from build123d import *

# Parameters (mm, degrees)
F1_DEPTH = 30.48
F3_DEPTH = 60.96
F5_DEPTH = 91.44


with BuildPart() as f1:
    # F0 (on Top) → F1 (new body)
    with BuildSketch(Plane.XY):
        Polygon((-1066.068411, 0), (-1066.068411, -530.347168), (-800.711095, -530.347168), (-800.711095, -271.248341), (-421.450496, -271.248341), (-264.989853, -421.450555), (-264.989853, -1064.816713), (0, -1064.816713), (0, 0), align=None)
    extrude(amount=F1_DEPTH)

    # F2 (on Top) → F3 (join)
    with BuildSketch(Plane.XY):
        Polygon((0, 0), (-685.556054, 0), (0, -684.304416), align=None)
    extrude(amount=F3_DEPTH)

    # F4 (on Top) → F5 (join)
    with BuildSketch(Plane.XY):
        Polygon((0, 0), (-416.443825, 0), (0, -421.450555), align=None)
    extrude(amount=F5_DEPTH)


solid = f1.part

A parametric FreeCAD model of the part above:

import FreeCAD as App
import Part
import Sketcher
Q = App.Units.Quantity

doc = App.newDocument("Part")
body = doc.addObject("PartDesign::Body", "Body")

# Sketch on XY plane
sketch1 = doc.addObject("Sketcher::SketchObject", "Sketch")
body.addObject(sketch1)
sketch1.AttachmentSupport = (doc.XY_Plane, [""])
sketch1.MapMode = "FlatFace"
sketch1.addGeometry([
    Part.LineSegment(App.Vector(-1066.068411, 0, 0), App.Vector(-1066.068411, -530.347168, 0)),  # 0
    Part.LineSegment(App.Vector(-1066.068411, -530.347168, 0), App.Vector(-800.711095, -530.347168, 0)),  # 1
    Part.LineSegment(App.Vector(-800.711095, -530.347168, 0), App.Vector(-800.711095, -271.248341, 0)),  # 2
    Part.LineSegment(App.Vector(-800.711095, -271.248341, 0), App.Vector(-421.450496, -271.248341, 0)),  # 3
    Part.LineSegment(App.Vector(-421.450496, -271.248341, 0), App.Vector(-264.989853, -421.450555, 0)),  # 4
    Part.LineSegment(App.Vector(-264.989853, -421.450555, 0), App.Vector(-264.989853, -1064.816713, 0)),  # 5
    Part.LineSegment(App.Vector(-264.989853, -1064.816713, 0), App.Vector(0, -1064.816713, 0)),  # 6
    Part.LineSegment(App.Vector(0, -1064.816713, 0), App.Vector(0, 0, 0)),  # 7
    Part.LineSegment(App.Vector(0, 0, 0), App.Vector(-1066.068411, 0, 0)),  # 8
], False)
sketch1.addConstraint([
    Sketcher.Constraint("Coincident", 0, 2, 1, 1),
    Sketcher.Constraint("Coincident", 1, 2, 2, 1),
    Sketcher.Constraint("Coincident", 2, 2, 3, 1),
    Sketcher.Constraint("Coincident", 3, 2, 4, 1),
    Sketcher.Constraint("Coincident", 4, 2, 5, 1),
    Sketcher.Constraint("Coincident", 5, 2, 6, 1),
    Sketcher.Constraint("Coincident", 6, 2, 7, 1),
    Sketcher.Constraint("Coincident", 7, 2, 8, 1),
    Sketcher.Constraint("Coincident", 8, 2, 0, 1),
    Sketcher.Constraint("Vertical", 0),
    Sketcher.Constraint("Horizontal", 1),
    Sketcher.Constraint("Vertical", 2),
    Sketcher.Constraint("Horizontal", 3),
    Sketcher.Constraint("Vertical", 5),
    Sketcher.Constraint("Horizontal", 6),
    Sketcher.Constraint("Vertical", 7),
    Sketcher.Constraint("Horizontal", 8),
    Sketcher.Constraint("Coincident", 7, 2, -1, 1),
    Sketcher.Constraint("DistanceX", 3, 1, 3, 2, Q("379.260599 mm")),
    Sketcher.Constraint("DistanceX", 8, 2, 8, 1, Q("1066.068411 mm")),
    Sketcher.Constraint("DistanceY", 0, 2, 0, 1, Q("530.347168 mm")),
    Sketcher.Constraint("DistanceX", 1, 1, 1, 2, Q("265.357316 mm")),
    Sketcher.Constraint("DistanceX", 6, 1, 6, 2, Q("264.989853 mm")),
    Sketcher.Constraint("DistanceY", 2, 1, 2, 2, Q("259.098827 mm")),
    Sketcher.Constraint("DistanceY", 5, 2, 5, 1, Q("643.366158 mm")),
    Sketcher.Constraint("DistanceY", 7, 1, 7, 2, Q("1064.816713 mm")),
])
pad1 = doc.addObject("PartDesign::Pad", "Pad")
body.addObject(pad1)
pad1.Profile = sketch1
pad1.Length = Q("1.2 in")

# Sketch on XY plane
sketch2 = doc.addObject("Sketcher::SketchObject", "Sketch001")
body.addObject(sketch2)
sketch2.AttachmentSupport = (doc.XY_Plane, [""])
sketch2.MapMode = "FlatFace"
sketch2.addGeometry([
    Part.LineSegment(App.Vector(0, 0, 0), App.Vector(-685.556054, 0, 0)),
    Part.LineSegment(App.Vector(-685.556054, 0, 0), App.Vector(0, -684.304416, 0)),
    Part.LineSegment(App.Vector(0, -684.304416, 0), App.Vector(0, 0, 0)),
], False)
sketch2.addConstraint([
    Sketcher.Constraint("Coincident", 0, 2, 1, 1),
    Sketcher.Constraint("Coincident", 1, 2, 2, 1),
    Sketcher.Constraint("Coincident", 2, 2, 0, 1),
    Sketcher.Constraint("Horizontal", 0),
    Sketcher.Constraint("Vertical", 2),
    Sketcher.Constraint("Coincident", 2, 2, -1, 1),
    Sketcher.Constraint("Distance", 1, Q("968.638032 mm")),
    Sketcher.Constraint("DistanceX", 0, 2, 0, 1, Q("685.556054 mm")),
])
pad2 = doc.addObject("PartDesign::Pad", "Pad001")
body.addObject(pad2)
pad2.Profile = sketch2
pad2.Length = Q("2.4 in")

# Sketch on XY plane
sketch3 = doc.addObject("Sketcher::SketchObject", "Sketch002")
body.addObject(sketch3)
sketch3.AttachmentSupport = (doc.XY_Plane, [""])
sketch3.MapMode = "FlatFace"
sketch3.addGeometry([
    Part.LineSegment(App.Vector(0, 0, 0), App.Vector(-416.443825, 0, 0)),
    Part.LineSegment(App.Vector(-416.443825, 0, 0), App.Vector(0, -421.450555, 0)),
    Part.LineSegment(App.Vector(0, -421.450555, 0), App.Vector(0, 0, 0)),
], False)
sketch3.addConstraint([
    Sketcher.Constraint("Coincident", 0, 2, 1, 1),
    Sketcher.Constraint("Coincident", 1, 2, 2, 1),
    Sketcher.Constraint("Coincident", 2, 2, 0, 1),
    Sketcher.Constraint("Horizontal", 0),
    Sketcher.Constraint("Vertical", 2),
    Sketcher.Constraint("Coincident", 2, 2, -1, 1),
    Sketcher.Constraint("DistanceX", 0, 2, 0, 1, Q("416.443825 mm")),
    Sketcher.Constraint("DistanceY", 2, 1, 2, 2, Q("421.450555 mm")),
])
pad3 = doc.addObject("PartDesign::Pad", "Pad002")
body.addObject(pad3)
pad3.Profile = sketch3
pad3.Length = Q("3.6 in")

doc.recompute()
